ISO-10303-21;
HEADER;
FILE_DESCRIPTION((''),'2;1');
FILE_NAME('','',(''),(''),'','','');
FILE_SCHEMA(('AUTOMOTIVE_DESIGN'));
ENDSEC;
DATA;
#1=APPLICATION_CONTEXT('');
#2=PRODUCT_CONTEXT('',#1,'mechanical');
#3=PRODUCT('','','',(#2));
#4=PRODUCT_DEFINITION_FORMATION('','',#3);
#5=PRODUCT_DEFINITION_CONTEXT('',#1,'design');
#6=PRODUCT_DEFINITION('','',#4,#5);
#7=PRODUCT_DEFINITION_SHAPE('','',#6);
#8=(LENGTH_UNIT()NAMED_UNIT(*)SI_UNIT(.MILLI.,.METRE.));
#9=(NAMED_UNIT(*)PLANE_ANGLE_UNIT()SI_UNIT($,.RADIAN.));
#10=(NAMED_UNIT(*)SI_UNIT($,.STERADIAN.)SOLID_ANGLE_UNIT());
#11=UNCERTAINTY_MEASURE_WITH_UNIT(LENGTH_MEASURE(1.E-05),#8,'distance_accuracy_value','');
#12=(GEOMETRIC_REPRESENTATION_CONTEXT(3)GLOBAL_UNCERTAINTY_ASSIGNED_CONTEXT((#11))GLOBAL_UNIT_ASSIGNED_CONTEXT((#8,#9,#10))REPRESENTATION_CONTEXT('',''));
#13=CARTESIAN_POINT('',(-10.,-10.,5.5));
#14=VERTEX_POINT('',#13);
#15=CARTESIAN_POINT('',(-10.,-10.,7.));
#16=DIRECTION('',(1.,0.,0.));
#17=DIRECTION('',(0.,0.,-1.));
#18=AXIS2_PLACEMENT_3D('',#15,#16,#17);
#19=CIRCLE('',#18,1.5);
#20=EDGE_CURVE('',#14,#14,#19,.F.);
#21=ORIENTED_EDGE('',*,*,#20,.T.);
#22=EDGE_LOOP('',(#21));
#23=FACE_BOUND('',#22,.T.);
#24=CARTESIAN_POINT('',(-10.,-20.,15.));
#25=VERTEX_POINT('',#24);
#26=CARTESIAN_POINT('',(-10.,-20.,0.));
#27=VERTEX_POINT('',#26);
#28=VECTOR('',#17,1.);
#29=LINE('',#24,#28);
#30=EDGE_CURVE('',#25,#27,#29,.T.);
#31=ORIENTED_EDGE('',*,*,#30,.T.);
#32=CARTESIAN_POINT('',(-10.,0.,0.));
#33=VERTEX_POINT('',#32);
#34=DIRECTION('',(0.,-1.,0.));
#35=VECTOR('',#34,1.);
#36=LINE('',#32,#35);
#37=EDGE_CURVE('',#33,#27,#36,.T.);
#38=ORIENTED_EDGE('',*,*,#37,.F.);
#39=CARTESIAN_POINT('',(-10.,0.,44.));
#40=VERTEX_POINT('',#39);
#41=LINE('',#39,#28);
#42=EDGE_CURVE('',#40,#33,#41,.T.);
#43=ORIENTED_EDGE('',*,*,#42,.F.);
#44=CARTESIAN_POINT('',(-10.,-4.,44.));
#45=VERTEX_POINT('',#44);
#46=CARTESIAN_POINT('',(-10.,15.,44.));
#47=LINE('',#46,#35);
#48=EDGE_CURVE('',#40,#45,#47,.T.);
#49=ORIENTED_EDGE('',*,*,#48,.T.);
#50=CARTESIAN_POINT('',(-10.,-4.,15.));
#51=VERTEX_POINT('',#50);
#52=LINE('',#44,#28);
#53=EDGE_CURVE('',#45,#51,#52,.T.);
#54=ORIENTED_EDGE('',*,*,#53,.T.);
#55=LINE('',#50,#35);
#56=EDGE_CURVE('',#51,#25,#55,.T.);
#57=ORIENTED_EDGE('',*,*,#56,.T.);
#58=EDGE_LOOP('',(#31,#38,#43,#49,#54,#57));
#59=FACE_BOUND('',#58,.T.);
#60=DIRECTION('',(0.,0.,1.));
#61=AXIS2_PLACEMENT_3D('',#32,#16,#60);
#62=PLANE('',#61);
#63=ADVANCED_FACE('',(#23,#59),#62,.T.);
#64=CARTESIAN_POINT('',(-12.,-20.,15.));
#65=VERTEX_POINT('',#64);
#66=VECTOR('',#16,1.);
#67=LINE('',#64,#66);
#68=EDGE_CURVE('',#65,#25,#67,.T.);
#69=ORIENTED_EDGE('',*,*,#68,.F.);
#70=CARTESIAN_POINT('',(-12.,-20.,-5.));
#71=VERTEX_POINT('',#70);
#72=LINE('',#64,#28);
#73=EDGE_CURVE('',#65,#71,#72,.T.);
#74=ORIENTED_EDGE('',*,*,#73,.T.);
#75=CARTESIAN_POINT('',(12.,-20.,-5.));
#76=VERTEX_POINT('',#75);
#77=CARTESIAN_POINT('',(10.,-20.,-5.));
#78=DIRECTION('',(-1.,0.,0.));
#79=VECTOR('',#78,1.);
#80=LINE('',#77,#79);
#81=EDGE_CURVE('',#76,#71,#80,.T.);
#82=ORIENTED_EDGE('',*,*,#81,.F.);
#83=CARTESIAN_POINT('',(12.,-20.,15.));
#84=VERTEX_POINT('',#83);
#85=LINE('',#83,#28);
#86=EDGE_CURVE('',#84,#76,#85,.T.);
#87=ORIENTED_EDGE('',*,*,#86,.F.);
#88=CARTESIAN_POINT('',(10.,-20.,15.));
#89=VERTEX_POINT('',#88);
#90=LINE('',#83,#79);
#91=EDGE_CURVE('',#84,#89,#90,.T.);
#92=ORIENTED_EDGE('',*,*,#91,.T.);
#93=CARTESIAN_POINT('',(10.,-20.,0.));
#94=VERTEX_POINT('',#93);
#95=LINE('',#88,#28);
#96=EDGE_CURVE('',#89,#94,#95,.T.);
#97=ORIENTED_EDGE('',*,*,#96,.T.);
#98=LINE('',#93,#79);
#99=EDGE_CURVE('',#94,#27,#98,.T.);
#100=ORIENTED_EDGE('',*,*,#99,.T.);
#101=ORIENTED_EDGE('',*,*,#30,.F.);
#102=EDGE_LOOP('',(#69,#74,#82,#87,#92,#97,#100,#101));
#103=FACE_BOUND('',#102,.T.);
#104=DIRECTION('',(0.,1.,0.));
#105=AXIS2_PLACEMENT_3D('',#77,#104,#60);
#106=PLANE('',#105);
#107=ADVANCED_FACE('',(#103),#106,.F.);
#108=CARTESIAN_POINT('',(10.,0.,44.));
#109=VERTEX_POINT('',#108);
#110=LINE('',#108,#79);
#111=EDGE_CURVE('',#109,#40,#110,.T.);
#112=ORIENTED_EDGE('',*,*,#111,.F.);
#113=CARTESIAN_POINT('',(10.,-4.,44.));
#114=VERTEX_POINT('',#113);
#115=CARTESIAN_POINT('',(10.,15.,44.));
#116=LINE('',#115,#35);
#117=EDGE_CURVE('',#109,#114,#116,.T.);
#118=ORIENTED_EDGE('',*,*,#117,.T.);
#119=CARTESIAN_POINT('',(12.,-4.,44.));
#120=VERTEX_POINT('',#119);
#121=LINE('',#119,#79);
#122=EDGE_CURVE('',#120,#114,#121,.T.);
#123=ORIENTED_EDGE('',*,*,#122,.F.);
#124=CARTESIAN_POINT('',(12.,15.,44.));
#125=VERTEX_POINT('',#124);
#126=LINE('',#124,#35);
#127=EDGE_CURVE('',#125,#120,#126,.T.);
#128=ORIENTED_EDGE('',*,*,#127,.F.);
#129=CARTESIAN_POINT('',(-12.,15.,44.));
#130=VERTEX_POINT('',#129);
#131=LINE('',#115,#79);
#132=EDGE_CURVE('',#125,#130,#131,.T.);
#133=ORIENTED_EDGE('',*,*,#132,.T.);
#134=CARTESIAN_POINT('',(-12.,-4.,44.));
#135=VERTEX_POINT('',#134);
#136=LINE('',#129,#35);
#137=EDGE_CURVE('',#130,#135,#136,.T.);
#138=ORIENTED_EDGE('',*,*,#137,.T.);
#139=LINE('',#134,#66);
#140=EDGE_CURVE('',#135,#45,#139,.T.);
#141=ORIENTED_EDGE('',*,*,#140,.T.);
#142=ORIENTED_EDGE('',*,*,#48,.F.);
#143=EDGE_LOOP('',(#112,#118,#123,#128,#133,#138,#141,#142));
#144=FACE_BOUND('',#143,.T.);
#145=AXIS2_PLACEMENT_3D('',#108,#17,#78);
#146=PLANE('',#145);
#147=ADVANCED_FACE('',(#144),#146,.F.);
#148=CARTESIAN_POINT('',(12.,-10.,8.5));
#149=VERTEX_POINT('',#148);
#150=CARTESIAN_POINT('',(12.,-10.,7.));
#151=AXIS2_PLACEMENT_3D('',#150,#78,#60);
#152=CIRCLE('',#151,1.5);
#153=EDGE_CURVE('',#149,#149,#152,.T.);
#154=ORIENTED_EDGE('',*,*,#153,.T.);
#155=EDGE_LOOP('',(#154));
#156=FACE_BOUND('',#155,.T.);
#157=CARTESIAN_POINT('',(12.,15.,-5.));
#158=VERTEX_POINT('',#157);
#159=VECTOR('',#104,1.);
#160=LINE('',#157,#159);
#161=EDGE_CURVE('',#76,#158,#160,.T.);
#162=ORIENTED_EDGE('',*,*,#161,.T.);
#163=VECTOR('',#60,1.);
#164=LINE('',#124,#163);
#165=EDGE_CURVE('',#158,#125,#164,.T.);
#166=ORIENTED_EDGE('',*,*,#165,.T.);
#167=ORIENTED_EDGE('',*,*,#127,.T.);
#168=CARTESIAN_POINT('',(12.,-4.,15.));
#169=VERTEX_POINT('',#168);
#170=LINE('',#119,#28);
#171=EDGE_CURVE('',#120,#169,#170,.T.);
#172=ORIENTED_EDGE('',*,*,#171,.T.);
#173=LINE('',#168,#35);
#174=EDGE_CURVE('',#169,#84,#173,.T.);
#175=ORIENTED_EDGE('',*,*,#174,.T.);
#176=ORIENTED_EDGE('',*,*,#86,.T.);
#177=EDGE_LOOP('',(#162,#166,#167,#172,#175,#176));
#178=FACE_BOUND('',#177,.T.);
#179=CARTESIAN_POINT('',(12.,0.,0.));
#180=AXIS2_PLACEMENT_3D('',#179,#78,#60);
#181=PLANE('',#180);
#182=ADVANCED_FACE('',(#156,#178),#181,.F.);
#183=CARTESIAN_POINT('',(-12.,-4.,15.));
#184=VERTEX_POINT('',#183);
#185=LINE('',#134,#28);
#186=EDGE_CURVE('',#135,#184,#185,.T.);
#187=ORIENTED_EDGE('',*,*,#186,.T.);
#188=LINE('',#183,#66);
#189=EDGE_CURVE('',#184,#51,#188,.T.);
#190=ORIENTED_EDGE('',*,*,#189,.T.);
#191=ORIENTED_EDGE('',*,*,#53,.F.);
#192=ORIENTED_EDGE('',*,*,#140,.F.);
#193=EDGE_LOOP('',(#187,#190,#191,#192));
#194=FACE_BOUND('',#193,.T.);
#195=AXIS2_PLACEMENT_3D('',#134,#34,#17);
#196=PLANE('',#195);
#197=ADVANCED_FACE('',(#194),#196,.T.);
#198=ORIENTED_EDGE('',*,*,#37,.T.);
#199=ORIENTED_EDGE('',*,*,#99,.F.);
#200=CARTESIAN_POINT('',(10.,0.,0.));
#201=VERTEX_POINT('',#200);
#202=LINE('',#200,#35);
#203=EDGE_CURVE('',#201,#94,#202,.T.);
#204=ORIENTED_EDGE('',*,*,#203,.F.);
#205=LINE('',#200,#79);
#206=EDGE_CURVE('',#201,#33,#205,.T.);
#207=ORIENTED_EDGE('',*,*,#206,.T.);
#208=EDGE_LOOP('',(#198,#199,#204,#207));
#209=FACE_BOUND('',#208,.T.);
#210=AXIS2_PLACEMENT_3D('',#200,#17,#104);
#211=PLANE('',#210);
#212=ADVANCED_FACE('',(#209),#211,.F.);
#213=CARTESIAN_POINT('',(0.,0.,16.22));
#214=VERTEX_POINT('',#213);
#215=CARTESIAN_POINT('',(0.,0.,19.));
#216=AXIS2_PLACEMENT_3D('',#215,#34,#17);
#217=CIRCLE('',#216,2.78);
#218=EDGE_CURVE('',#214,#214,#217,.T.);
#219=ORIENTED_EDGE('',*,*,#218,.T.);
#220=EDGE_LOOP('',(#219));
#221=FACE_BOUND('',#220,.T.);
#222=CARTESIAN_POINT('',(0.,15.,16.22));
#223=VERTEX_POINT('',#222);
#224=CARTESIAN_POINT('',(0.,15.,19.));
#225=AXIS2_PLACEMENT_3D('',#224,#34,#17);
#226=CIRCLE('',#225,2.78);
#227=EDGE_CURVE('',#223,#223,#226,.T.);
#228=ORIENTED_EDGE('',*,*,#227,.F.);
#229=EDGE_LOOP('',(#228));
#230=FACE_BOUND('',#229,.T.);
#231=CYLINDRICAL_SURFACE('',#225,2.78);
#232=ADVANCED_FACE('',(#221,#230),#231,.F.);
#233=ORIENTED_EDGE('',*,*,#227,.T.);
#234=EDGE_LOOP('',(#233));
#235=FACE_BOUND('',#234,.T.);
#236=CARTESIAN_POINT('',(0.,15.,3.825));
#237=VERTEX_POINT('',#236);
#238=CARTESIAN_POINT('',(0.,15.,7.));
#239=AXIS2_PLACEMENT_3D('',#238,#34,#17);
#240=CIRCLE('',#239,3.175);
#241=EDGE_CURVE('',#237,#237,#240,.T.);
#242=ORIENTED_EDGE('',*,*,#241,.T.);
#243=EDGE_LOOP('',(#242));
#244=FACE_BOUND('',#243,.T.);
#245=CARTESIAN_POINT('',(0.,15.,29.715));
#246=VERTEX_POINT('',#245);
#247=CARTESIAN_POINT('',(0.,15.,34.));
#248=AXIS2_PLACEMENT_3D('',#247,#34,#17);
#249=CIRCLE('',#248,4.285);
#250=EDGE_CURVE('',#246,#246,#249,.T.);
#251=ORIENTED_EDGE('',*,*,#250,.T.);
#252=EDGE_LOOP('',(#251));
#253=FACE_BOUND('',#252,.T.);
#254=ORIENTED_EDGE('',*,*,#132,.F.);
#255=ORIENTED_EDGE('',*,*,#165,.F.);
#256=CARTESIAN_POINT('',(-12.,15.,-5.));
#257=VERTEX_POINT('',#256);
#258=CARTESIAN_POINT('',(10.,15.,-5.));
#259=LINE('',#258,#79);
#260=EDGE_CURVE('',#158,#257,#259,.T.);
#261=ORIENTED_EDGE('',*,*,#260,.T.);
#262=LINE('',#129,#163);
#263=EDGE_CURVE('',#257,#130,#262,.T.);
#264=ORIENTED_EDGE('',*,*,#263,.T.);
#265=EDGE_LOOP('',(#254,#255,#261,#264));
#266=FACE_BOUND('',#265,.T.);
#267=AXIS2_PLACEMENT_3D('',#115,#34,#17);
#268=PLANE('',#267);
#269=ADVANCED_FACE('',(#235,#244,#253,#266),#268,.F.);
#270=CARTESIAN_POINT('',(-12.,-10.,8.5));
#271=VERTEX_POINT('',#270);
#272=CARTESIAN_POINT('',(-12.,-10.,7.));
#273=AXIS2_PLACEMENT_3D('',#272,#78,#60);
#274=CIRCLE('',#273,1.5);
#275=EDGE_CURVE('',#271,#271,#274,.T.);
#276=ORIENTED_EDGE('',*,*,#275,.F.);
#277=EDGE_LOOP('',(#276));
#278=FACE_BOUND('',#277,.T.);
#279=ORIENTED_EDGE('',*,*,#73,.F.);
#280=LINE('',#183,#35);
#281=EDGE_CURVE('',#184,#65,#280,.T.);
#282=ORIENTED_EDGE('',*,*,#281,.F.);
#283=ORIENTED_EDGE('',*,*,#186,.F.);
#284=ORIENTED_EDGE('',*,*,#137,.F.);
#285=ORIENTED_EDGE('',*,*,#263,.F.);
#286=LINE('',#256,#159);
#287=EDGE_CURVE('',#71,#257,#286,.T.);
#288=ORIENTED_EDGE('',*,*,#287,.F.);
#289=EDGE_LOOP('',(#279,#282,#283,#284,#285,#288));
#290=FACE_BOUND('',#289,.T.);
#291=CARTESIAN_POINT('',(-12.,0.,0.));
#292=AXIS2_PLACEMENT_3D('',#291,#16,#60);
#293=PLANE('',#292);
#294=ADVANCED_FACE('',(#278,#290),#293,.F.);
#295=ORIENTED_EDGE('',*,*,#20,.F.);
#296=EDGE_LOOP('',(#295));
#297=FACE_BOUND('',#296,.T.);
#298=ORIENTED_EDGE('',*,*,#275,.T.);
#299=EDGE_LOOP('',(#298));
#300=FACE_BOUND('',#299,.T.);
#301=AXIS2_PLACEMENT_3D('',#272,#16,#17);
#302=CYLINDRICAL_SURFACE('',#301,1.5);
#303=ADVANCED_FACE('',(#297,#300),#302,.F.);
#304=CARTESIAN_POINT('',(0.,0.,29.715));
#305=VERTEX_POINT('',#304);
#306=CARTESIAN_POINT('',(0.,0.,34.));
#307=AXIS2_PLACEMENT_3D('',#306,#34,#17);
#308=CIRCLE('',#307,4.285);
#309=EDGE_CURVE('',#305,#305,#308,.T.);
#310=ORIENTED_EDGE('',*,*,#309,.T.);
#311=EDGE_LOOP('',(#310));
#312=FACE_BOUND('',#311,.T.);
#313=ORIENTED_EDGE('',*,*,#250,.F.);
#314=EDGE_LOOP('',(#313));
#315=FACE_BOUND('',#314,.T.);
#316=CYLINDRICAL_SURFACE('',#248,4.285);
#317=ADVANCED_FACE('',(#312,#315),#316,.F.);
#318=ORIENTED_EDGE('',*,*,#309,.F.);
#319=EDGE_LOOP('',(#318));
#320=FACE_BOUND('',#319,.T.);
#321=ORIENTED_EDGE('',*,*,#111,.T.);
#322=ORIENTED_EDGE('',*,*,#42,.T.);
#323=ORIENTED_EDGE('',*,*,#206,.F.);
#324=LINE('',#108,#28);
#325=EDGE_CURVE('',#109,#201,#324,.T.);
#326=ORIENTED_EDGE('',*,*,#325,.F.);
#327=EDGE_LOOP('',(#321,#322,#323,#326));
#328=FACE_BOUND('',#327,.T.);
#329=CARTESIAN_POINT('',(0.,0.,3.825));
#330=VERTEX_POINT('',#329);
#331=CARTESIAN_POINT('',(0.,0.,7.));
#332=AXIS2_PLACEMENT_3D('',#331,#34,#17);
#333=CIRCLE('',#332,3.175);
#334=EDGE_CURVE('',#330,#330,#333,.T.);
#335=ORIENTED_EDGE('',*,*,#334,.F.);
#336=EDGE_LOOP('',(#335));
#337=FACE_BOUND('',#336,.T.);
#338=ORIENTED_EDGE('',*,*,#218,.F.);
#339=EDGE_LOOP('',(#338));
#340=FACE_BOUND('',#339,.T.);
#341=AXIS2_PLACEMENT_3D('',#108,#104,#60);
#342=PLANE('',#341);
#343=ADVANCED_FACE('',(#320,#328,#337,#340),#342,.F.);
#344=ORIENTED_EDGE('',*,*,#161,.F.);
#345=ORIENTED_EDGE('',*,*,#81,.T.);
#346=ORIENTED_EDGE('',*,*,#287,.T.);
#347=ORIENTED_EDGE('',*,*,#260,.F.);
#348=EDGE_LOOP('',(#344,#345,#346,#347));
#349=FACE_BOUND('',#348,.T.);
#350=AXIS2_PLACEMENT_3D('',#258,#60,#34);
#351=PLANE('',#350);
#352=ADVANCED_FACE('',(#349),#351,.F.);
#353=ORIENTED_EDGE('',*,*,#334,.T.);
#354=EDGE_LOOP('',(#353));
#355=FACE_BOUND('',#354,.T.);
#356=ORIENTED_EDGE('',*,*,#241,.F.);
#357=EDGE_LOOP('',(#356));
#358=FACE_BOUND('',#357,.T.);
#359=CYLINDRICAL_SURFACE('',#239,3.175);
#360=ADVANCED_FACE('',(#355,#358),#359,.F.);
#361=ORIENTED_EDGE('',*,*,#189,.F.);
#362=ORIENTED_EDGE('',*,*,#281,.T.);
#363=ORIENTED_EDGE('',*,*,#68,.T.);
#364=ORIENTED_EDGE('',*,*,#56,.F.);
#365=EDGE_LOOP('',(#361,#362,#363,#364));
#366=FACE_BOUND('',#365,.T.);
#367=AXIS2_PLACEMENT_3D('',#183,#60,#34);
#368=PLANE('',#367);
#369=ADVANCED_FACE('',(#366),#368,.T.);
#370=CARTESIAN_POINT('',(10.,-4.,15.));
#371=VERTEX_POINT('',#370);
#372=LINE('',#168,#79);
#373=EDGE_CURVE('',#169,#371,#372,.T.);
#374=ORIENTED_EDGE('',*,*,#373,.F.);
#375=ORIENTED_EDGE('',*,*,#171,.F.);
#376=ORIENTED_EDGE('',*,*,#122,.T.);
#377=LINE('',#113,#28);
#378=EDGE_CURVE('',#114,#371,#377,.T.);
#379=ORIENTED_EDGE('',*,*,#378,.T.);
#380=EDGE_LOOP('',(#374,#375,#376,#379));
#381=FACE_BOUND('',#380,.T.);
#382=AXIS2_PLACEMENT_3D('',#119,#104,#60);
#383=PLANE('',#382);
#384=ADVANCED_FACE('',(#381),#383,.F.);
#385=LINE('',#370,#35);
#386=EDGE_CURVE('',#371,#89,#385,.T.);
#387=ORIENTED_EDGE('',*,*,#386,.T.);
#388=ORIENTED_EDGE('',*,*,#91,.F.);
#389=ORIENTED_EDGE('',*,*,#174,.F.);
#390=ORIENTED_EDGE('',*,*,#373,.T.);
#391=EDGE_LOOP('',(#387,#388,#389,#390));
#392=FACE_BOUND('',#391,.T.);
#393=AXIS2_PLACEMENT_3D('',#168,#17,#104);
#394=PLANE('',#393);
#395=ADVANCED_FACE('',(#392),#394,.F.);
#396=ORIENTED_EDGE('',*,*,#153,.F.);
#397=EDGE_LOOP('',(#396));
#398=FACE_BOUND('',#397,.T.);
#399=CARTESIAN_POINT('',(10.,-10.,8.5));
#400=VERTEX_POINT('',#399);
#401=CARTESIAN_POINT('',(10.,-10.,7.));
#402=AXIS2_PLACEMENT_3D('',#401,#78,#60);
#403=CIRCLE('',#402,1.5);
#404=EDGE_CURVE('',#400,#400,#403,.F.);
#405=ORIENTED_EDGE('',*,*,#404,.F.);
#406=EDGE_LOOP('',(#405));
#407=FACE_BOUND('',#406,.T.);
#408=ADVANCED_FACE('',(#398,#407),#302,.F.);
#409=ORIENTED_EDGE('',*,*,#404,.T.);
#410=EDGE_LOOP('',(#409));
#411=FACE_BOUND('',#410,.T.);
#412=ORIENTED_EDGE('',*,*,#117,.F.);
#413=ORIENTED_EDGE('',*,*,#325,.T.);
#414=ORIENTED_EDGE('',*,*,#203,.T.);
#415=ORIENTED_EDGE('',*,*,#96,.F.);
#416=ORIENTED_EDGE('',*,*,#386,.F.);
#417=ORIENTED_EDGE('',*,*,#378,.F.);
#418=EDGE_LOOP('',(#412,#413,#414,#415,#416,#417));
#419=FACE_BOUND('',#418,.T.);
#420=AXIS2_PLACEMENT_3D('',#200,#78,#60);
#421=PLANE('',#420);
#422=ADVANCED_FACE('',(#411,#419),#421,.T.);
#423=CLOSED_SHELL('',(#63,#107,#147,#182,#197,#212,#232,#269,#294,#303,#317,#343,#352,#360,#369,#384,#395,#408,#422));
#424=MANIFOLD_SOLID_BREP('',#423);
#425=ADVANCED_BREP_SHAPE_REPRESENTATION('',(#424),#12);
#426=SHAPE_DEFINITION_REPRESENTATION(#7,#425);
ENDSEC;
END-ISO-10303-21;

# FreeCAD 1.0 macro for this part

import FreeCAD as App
import Part
import Sketcher

V = App.Vector


def add_polygon(sketch, points):
    """Adds a closed chain of lines whose ends are joined by coincident constraints."""
    first, n = sketch.GeometryCount, len(points)
    for a, b in zip(points, points[1:] + points[:1]):
        sketch.addGeometry(Part.LineSegment(App.Vector(*a, 0), App.Vector(*b, 0)), False)
    for i in range(n):
        sketch.addConstraint(Sketcher.Constraint("Coincident", first + i, 2, first + (i + 1) % n, 1))

doc = App.newDocument("Part")
params = doc.addObject("Spreadsheet::Sheet", "Params")
for row, (alias, value) in enumerate([
    ("sketch1_width", "20 mm"),
    ("sketch1_width2", "35 mm"),
    ("sketch1_height", "44 mm"),
    ("sketch1_height2", "5 mm"),
    ("pad1_length", "20 mm"),
    ("sketch2_width", "19 mm"),
    ("sketch2_width2", "16 mm"),
    ("sketch2_height", "29 mm"),
    ("sketch2_height2", "20 mm"),
    ("pad2_length", "2 mm"),
    ("sketch3_diameter", "8.57 mm"),
    ("sketch3_diameter2", "5.56 mm"),
    ("sketch3_diameter3", "6.35 mm"),
    ("sketch4_diameter", "3 mm"),
], start=1):
    params.set(f"A{row}", alias)
    params.set(f"B{row}", "=" + value)
    params.setAlias(f"B{row}", alias)

body = doc.addObject("PartDesign::Body", "Body")

# Sketch on YZ plane
sketch1 = body.newObject("Sketcher::SketchObject", "Sketch")
sketch1.AttachmentSupport = (doc.getObject("YZ_Plane"), [""])
sketch1.MapMode = "FlatFace"
add_polygon(sketch1, [(0, 44), (0, 0), (-20, 0), (-20, -5), (15, -5), (15, 44)])  # lines 0-5
sketch1.addConstraint([
    Sketcher.Constraint("Vertical", 0),
    Sketcher.Constraint("Horizontal", 1),
    Sketcher.Constraint("Vertical", 2),
    Sketcher.Constraint("Horizontal", 3),
    Sketcher.Constraint("Vertical", 4),
    Sketcher.Constraint("Horizontal", 5),
    Sketcher.Constraint("Coincident", 0, 2, -1, 1),
    Sketcher.Constraint("DistanceX", 1, 2, 1, 1, 20.0),
    Sketcher.Constraint("DistanceX", 3, 1, 3, 2, 35.0),
    Sketcher.Constraint("DistanceY", 0, 2, 0, 1, 44.0),
    Sketcher.Constraint("DistanceY", 2, 2, 2, 1, 5.0),
])
sketch1.setExpression("Constraints[13]", "Params.sketch1_width")
sketch1.setExpression("Constraints[14]", "Params.sketch1_width2")
sketch1.setExpression("Constraints[15]", "Params.sketch1_height")
sketch1.setExpression("Constraints[16]", "Params.sketch1_height2")
pad1 = body.newObject("PartDesign::Pad", "Pad")
pad1.Profile = sketch1
pad1.setExpression("Length", "Params.pad1_length")
pad1.Midplane = True

# Sketch on YZ plane
sketch2 = body.newObject("Sketcher::SketchObject", "Sketch001")
sketch2.AttachmentSupport = (doc.getObject("YZ_Plane"), [""])
sketch2.MapMode = "FlatFace"
sketch2.AttachmentOffset = App.Placement(V(0, 0, 10), App.Rotation())
add_polygon(sketch2, [(15, 44), (-4, 44), (-4, 15), (-20, 15), (-20, -5), (15, -5)])  # lines 0-5
sketch2.addConstraint([
    Sketcher.Constraint("Horizontal", 0),
    Sketcher.Constraint("Vertical", 1),
    Sketcher.Constraint("Horizontal", 2),
    Sketcher.Constraint("Vertical", 3),
    Sketcher.Constraint("Horizontal", 4),
    Sketcher.Constraint("Vertical", 5),
    Sketcher.Constraint("DistanceX", 0, 2, 0, 1, 19.0),
    Sketcher.Constraint("DistanceX", 2, 2, 2, 1, 16.0),
    Sketcher.Constraint("DistanceY", 1, 2, 1, 1, 29.0),
    Sketcher.Constraint("DistanceY", 3, 2, 3, 1, 20.0),
    Sketcher.Constraint("DistanceX", 0, 2, -1, 1, 4.0),
    Sketcher.Constraint("DistanceY", -1, 1, 0, 2, 44.0),
])
sketch2.setExpression("Constraints[12]", "Params.sketch2_width")
sketch2.setExpression("Constraints[13]", "Params.sketch2_width2")
sketch2.setExpression("Constraints[14]", "Params.sketch2_height")
sketch2.setExpression("Constraints[15]", "Params.sketch2_height2")
pad2 = body.newObject("PartDesign::Pad", "Pad001")
pad2.Profile = sketch2
pad2.setExpression("Length", "Params.pad2_length")
doc.recompute()

mirrored = body.newObject("PartDesign::Mirrored", "Mirrored")
mirrored.Originals = [pad2]
mirrored.MirrorPlane = (doc.getObject("YZ_Plane"), [""])
body.Tip = mirrored

# Sketch on XZ plane
sketch3 = body.newObject("Sketcher::SketchObject", "Sketch002")
sketch3.AttachmentSupport = (doc.getObject("XZ_Plane"), [""])
sketch3.MapMode = "FlatFace"
sketch3.addGeometry([
    Part.Circle(V(0, 34, 0), V(0, 0, 1), 4.3),
    Part.Circle(V(0, 19, 0), V(0, 0, 1), 2.8),
    Part.Circle(V(0, 7, 0), V(0, 0, 1), 3.2),
], False)
sketch3.addConstraint([
    Sketcher.Constraint("PointOnObject", 0, 3, -2),
    Sketcher.Constraint("PointOnObject", 1, 3, -2),
    Sketcher.Constraint("PointOnObject", 2, 3, -2),
    Sketcher.Constraint("Diameter", 0, 8.57),
    Sketcher.Constraint("Diameter", 1, 5.56),
    Sketcher.Constraint("Diameter", 2, 6.35),
    Sketcher.Constraint("DistanceY", -1, 1, 0, 3, 34.0),
    Sketcher.Constraint("DistanceY", -1, 1, 1, 3, 19.0),
    Sketcher.Constraint("DistanceY", -1, 1, 2, 3, 7.0),
])
sketch3.setExpression("Constraints[3]", "Params.sketch3_diameter")
sketch3.setExpression("Constraints[4]", "Params.sketch3_diameter2")
sketch3.setExpression("Constraints[5]", "Params.sketch3_diameter3")
pocket1 = body.newObject("PartDesign::Pocket", "Pocket")
pocket1.Profile = sketch3
pocket1.Type = "ThroughAll"

# Sketch on YZ plane
sketch4 = body.newObject("Sketcher::SketchObject", "Sketch003")
sketch4.AttachmentSupport = (doc.getObject("YZ_Plane"), [""])
sketch4.MapMode = "FlatFace"
sketch4.AttachmentOffset = App.Placement(V(0, 0, 12), App.Rotation())
sketch4.addGeometry(Part.Circle(V(-10, 7, 0), V(0, 0, 1), 1.5), False)
sketch4.addConstraint([
    Sketcher.Constraint("Diameter", 0, 3.0),
    Sketcher.Constraint("DistanceX", 0, 3, -1, 1, 10.0),
    Sketcher.Constraint("DistanceY", -1, 1, 0, 3, 7.0),
])
sketch4.setExpression("Constraints[0]", "Params.sketch4_diameter")
pocket2 = body.newObject("PartDesign::Pocket", "Pocket001")
pocket2.Profile = sketch4
pocket2.Type = "ThroughAll"

doc.recompute()
